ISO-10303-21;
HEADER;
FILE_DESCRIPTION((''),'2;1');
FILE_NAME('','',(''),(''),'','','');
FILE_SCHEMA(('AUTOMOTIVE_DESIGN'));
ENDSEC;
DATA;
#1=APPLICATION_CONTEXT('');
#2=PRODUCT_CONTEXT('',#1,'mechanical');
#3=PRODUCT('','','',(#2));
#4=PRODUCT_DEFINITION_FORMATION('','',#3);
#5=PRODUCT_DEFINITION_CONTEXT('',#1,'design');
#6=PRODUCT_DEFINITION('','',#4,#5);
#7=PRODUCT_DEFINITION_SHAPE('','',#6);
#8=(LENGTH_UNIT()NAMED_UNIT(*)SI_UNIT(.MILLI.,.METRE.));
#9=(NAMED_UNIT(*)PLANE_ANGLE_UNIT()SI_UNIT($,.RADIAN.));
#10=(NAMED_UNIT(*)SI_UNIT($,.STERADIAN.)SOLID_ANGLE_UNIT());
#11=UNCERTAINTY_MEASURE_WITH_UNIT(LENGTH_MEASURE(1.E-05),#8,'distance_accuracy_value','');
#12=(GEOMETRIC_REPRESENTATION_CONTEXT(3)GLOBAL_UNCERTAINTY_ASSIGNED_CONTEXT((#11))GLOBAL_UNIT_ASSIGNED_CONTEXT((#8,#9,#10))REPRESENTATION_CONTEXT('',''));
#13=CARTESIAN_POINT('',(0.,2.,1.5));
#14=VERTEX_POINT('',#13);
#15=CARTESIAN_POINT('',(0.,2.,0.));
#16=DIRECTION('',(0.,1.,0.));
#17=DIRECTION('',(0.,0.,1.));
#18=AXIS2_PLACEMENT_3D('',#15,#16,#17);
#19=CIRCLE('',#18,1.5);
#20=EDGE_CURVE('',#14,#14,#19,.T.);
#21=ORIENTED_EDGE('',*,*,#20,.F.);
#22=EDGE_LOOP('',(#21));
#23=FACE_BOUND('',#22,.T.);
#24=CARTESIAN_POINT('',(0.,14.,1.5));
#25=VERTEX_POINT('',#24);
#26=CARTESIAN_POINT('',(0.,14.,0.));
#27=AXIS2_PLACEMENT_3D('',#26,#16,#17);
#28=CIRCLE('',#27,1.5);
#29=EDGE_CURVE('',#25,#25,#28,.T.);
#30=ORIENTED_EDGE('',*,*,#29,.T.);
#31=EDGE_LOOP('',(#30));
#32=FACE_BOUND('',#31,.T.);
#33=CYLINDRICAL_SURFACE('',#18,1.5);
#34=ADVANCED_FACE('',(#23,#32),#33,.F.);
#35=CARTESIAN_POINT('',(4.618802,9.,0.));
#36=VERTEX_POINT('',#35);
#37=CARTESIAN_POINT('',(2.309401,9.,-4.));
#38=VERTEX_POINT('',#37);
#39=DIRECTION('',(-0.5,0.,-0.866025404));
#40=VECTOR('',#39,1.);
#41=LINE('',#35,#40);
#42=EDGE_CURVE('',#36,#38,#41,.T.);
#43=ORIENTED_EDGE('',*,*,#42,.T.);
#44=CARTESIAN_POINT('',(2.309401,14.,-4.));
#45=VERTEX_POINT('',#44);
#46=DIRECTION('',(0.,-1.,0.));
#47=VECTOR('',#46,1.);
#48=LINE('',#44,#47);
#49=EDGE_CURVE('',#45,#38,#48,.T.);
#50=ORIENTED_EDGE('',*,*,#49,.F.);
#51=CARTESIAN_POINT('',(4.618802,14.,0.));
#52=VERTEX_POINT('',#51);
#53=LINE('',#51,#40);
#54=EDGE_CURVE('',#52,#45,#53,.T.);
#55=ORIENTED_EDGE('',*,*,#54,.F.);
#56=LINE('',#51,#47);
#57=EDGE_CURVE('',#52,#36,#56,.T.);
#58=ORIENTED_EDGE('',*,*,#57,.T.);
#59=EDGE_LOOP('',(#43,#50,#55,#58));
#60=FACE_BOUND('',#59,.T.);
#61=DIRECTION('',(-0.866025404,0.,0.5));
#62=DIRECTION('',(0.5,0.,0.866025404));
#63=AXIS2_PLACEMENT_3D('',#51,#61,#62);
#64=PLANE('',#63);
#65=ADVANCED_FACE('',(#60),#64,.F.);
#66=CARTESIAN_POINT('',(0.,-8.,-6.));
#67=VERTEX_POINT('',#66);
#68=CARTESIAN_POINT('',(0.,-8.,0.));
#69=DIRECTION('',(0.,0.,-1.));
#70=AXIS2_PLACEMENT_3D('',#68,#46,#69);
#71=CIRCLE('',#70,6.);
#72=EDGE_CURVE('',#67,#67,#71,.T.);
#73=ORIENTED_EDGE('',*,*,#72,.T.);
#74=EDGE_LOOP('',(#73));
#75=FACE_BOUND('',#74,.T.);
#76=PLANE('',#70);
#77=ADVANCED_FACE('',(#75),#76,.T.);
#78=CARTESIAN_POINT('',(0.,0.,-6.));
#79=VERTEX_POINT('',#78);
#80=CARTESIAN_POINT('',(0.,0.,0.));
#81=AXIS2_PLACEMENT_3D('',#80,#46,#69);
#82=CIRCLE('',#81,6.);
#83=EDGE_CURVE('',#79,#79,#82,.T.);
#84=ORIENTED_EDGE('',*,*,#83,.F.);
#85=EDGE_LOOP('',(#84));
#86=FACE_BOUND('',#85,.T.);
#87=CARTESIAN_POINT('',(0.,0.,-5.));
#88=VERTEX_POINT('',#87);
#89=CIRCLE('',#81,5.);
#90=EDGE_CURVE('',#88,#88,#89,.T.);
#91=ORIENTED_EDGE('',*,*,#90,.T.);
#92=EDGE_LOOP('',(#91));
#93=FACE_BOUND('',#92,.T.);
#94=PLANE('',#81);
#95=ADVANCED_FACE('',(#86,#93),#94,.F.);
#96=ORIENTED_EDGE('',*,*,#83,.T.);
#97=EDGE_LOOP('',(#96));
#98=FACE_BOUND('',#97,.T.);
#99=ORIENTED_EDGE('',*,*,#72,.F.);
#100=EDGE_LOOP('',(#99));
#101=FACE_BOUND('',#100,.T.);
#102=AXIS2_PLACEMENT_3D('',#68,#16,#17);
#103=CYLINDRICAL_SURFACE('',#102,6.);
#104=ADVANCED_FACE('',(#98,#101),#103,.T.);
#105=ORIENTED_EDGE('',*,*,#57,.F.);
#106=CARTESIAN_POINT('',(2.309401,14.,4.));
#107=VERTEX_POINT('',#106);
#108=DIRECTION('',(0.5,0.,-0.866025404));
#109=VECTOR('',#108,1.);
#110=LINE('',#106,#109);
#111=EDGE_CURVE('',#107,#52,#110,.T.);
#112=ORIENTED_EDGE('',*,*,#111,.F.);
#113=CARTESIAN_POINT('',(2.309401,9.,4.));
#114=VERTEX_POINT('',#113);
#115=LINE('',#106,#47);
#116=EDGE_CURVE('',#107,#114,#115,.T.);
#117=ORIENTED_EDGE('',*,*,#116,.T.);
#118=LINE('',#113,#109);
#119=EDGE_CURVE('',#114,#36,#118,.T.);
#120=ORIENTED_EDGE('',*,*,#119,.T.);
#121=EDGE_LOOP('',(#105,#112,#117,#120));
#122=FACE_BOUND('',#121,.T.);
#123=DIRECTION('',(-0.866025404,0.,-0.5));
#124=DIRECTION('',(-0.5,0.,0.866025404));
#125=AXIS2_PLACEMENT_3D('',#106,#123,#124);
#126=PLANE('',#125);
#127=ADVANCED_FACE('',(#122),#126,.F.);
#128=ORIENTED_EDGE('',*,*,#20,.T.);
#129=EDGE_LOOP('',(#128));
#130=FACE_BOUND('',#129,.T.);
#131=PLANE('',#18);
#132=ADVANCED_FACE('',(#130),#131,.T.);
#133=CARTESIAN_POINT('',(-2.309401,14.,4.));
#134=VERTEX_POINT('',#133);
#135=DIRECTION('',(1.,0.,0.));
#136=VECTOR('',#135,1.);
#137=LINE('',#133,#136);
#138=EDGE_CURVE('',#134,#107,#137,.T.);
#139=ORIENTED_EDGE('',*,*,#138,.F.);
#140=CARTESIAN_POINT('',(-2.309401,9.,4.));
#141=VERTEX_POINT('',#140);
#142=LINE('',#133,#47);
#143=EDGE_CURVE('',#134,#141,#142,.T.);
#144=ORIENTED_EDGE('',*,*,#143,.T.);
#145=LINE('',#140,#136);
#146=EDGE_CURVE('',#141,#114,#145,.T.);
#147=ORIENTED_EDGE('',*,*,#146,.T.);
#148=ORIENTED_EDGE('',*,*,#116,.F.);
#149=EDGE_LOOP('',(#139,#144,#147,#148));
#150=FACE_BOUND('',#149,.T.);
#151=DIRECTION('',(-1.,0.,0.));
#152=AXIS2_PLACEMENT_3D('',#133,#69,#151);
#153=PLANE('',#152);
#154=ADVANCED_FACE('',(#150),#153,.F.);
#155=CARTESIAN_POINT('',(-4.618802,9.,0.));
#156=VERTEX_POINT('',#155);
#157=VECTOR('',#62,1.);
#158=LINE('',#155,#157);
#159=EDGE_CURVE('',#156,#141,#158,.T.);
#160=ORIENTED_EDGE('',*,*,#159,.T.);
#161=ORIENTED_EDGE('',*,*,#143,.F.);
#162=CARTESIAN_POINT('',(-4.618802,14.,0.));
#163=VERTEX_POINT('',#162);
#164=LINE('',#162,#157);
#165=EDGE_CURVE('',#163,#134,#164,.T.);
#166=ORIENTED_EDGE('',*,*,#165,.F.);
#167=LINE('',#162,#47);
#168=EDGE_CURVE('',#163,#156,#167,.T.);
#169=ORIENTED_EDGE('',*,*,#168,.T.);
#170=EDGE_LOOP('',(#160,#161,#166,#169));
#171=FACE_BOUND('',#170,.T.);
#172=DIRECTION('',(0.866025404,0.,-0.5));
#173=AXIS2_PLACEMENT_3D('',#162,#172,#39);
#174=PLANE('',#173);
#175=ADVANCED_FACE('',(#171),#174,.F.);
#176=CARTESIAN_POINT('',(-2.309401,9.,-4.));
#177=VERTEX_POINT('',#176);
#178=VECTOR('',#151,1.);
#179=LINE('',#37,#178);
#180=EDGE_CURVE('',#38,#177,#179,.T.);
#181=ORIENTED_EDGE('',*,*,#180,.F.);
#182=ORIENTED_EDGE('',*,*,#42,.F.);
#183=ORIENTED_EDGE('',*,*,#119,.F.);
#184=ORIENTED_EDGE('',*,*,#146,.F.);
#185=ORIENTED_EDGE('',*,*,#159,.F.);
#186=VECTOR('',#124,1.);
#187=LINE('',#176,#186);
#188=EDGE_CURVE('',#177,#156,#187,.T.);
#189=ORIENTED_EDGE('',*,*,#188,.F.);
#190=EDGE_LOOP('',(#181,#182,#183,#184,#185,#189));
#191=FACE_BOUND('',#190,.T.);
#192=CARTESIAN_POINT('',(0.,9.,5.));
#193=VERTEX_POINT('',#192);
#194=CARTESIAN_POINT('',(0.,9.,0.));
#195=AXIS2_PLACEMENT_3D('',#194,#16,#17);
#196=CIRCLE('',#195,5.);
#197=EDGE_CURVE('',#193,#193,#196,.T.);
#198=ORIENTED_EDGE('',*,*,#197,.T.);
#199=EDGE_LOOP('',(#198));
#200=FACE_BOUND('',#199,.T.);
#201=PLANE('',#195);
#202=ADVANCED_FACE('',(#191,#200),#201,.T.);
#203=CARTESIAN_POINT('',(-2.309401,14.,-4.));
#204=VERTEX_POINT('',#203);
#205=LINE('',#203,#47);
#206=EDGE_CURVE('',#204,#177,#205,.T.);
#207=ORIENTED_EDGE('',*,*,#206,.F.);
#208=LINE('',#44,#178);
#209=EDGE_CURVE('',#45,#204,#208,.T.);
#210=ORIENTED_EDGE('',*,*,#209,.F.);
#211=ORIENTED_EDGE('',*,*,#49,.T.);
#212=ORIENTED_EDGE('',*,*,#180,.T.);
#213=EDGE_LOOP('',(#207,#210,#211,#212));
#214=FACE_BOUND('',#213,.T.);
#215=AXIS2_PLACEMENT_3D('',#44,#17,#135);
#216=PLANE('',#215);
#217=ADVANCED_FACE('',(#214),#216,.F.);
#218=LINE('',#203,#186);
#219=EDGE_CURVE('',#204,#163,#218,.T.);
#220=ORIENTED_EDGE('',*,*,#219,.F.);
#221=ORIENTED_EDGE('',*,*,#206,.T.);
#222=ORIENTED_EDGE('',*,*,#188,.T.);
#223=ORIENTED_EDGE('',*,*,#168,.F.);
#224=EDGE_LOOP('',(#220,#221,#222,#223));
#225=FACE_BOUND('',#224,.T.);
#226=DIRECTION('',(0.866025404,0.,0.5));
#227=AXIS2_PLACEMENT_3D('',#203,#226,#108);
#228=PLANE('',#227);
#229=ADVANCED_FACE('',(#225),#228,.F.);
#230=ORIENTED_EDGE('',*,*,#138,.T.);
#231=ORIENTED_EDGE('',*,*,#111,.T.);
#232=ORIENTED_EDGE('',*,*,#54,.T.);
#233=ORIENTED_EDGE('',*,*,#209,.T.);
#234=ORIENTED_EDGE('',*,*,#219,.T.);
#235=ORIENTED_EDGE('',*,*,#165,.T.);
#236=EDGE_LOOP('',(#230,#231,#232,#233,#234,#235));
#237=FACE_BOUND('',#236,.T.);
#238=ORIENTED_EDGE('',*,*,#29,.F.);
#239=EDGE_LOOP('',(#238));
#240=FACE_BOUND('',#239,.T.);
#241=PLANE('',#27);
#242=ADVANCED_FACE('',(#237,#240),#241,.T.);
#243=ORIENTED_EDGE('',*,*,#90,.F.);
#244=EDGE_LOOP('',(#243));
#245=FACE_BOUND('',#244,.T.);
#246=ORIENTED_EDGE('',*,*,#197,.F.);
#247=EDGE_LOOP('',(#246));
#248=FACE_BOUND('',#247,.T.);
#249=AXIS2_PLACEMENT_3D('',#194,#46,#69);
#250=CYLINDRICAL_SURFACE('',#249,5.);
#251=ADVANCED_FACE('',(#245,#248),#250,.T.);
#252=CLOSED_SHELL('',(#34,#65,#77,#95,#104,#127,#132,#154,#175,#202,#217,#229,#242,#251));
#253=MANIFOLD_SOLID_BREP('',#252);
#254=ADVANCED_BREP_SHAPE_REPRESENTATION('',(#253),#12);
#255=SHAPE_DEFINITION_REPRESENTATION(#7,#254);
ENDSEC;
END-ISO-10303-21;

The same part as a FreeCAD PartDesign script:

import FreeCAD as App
import Part
import Sketcher
Q = App.Units.Quantity

doc = App.newDocument("Part")
body = doc.addObject("PartDesign::Body", "Body")

# Sketch on XZ plane
sketch1 = body.newObject("Sketcher::SketchObject", "Sketch")
sketch1.AttachmentSupport = (doc.getObject("XZ_Plane"), [""])
sketch1.MapMode = "FlatFace"
sketch1.addGeometry(Part.Circle(App.Vector(0, 0, 0), App.Vector(0, 0, 1), 5), False)
sketch1.addConstraint([
    Sketcher.Constraint("Coincident", 0, 3, -1, 1),
    Sketcher.Constraint("Diameter", 0, Q("10 mm")),
])
pad1 = body.newObject("PartDesign::Pad", "Pad")
pad1.Profile = sketch1
pad1.Length = 9
pad1.Reversed = True

# Sketch on XZ plane
sketch2 = body.newObject("Sketcher::SketchObject", "Sketch001")
sketch2.AttachmentSupport = (doc.getObject("XZ_Plane"), [""])
sketch2.MapMode = "FlatFace"
sketch2.addGeometry(Part.Circle(App.Vector(0, 0, 0), App.Vector(0, 0, 1), 6), False)
sketch2.addConstraint([
    Sketcher.Constraint("Coincident", 0, 3, -1, 1),
    Sketcher.Constraint("Diameter", 0, Q("12 mm")),
])
pad2 = body.newObject("PartDesign::Pad", "Pad001")
pad2.Profile = sketch2
pad2.Length = 8

# Sketch on XZ plane
sketch3 = body.newObject("Sketcher::SketchObject", "Sketch002")
sketch3.AttachmentSupport = (doc.getObject("XZ_Plane"), [""])
sketch3.MapMode = "FlatFace"
sketch3.AttachmentOffset = App.Placement(App.Vector(0, 0, -9), App.Rotation())
sketch3.addGeometry([
    Part.LineSegment(App.Vector(4.6, 0, 0), App.Vector(2.3, -4, 0)),  # 0
    Part.LineSegment(App.Vector(2.3, -4, 0), App.Vector(-2.3, -4, 0)),  # 1
    Part.LineSegment(App.Vector(-2.3, -4, 0), App.Vector(-4.6, 0, 0)),  # 2
    Part.LineSegment(App.Vector(-4.6, 0, 0), App.Vector(-2.3, 4, 0)),  # 3
    Part.LineSegment(App.Vector(-2.3, 4, 0), App.Vector(2.3, 4, 0)),  # 4
    Part.LineSegment(App.Vector(2.3, 4, 0), App.Vector(4.6, 0, 0)),  # 5
], False)
sketch3.addConstraint([
    Sketcher.Constraint("Coincident", 0, 2, 1, 1),
    Sketcher.Constraint("Coincident", 1, 2, 2, 1),
    Sketcher.Constraint("Coincident", 2, 2, 3, 1),
    Sketcher.Constraint("Coincident", 3, 2, 4, 1),
    Sketcher.Constraint("Coincident", 4, 2, 5, 1),
    Sketcher.Constraint("Coincident", 5, 2, 0, 1),
    Sketcher.Constraint("Horizontal", 1),
    Sketcher.Constraint("Horizontal", 4),
    Sketcher.Constraint("Symmetric", 0, 2, 3, 2, -1, 1),
    Sketcher.Constraint("Symmetric", 2, 2, 5, 2, -1, 1),
    Sketcher.Constraint("PointOnObject", 2, 2, -1),
    Sketcher.Constraint("Parallel", 2, 5),
    Sketcher.Constraint("Vertical", 1, 2, 3, 2),
    Sketcher.Constraint("Angle", 0, Q("-120 deg")),
    Sketcher.Constraint("DistanceY", 0, 2, -1, 1, Q("4 mm")),
    Sketcher.Constraint("DistanceX", -1, 1, 0, 2, Q("2.309401 mm")),
])
pad3 = body.newObject("PartDesign::Pad", "Pad002")
pad3.Profile = sketch3
pad3.Length = 5
pad3.Reversed = True

# Sketch on XZ plane
sketch4 = body.newObject("Sketcher::SketchObject", "Sketch003")
sketch4.AttachmentSupport = (doc.getObject("XZ_Plane"), [""])
sketch4.MapMode = "FlatFace"
sketch4.AttachmentOffset = App.Placement(App.Vector(0, 0, -14), App.Rotation())
sketch4.addGeometry(Part.Circle(App.Vector(0, 0, 0), App.Vector(0, 0, 1), 1.5), False)
sketch4.addConstraint([
    Sketcher.Constraint("Coincident", 0, 3, -1, 1),
    Sketcher.Constraint("Diameter", 0, Q("3 mm")),
])
pocket1 = body.newObject("PartDesign::Pocket", "Pocket")
pocket1.Profile = sketch4
pocket1.Length = 12
pocket1.Reversed = True

doc.recompute()
